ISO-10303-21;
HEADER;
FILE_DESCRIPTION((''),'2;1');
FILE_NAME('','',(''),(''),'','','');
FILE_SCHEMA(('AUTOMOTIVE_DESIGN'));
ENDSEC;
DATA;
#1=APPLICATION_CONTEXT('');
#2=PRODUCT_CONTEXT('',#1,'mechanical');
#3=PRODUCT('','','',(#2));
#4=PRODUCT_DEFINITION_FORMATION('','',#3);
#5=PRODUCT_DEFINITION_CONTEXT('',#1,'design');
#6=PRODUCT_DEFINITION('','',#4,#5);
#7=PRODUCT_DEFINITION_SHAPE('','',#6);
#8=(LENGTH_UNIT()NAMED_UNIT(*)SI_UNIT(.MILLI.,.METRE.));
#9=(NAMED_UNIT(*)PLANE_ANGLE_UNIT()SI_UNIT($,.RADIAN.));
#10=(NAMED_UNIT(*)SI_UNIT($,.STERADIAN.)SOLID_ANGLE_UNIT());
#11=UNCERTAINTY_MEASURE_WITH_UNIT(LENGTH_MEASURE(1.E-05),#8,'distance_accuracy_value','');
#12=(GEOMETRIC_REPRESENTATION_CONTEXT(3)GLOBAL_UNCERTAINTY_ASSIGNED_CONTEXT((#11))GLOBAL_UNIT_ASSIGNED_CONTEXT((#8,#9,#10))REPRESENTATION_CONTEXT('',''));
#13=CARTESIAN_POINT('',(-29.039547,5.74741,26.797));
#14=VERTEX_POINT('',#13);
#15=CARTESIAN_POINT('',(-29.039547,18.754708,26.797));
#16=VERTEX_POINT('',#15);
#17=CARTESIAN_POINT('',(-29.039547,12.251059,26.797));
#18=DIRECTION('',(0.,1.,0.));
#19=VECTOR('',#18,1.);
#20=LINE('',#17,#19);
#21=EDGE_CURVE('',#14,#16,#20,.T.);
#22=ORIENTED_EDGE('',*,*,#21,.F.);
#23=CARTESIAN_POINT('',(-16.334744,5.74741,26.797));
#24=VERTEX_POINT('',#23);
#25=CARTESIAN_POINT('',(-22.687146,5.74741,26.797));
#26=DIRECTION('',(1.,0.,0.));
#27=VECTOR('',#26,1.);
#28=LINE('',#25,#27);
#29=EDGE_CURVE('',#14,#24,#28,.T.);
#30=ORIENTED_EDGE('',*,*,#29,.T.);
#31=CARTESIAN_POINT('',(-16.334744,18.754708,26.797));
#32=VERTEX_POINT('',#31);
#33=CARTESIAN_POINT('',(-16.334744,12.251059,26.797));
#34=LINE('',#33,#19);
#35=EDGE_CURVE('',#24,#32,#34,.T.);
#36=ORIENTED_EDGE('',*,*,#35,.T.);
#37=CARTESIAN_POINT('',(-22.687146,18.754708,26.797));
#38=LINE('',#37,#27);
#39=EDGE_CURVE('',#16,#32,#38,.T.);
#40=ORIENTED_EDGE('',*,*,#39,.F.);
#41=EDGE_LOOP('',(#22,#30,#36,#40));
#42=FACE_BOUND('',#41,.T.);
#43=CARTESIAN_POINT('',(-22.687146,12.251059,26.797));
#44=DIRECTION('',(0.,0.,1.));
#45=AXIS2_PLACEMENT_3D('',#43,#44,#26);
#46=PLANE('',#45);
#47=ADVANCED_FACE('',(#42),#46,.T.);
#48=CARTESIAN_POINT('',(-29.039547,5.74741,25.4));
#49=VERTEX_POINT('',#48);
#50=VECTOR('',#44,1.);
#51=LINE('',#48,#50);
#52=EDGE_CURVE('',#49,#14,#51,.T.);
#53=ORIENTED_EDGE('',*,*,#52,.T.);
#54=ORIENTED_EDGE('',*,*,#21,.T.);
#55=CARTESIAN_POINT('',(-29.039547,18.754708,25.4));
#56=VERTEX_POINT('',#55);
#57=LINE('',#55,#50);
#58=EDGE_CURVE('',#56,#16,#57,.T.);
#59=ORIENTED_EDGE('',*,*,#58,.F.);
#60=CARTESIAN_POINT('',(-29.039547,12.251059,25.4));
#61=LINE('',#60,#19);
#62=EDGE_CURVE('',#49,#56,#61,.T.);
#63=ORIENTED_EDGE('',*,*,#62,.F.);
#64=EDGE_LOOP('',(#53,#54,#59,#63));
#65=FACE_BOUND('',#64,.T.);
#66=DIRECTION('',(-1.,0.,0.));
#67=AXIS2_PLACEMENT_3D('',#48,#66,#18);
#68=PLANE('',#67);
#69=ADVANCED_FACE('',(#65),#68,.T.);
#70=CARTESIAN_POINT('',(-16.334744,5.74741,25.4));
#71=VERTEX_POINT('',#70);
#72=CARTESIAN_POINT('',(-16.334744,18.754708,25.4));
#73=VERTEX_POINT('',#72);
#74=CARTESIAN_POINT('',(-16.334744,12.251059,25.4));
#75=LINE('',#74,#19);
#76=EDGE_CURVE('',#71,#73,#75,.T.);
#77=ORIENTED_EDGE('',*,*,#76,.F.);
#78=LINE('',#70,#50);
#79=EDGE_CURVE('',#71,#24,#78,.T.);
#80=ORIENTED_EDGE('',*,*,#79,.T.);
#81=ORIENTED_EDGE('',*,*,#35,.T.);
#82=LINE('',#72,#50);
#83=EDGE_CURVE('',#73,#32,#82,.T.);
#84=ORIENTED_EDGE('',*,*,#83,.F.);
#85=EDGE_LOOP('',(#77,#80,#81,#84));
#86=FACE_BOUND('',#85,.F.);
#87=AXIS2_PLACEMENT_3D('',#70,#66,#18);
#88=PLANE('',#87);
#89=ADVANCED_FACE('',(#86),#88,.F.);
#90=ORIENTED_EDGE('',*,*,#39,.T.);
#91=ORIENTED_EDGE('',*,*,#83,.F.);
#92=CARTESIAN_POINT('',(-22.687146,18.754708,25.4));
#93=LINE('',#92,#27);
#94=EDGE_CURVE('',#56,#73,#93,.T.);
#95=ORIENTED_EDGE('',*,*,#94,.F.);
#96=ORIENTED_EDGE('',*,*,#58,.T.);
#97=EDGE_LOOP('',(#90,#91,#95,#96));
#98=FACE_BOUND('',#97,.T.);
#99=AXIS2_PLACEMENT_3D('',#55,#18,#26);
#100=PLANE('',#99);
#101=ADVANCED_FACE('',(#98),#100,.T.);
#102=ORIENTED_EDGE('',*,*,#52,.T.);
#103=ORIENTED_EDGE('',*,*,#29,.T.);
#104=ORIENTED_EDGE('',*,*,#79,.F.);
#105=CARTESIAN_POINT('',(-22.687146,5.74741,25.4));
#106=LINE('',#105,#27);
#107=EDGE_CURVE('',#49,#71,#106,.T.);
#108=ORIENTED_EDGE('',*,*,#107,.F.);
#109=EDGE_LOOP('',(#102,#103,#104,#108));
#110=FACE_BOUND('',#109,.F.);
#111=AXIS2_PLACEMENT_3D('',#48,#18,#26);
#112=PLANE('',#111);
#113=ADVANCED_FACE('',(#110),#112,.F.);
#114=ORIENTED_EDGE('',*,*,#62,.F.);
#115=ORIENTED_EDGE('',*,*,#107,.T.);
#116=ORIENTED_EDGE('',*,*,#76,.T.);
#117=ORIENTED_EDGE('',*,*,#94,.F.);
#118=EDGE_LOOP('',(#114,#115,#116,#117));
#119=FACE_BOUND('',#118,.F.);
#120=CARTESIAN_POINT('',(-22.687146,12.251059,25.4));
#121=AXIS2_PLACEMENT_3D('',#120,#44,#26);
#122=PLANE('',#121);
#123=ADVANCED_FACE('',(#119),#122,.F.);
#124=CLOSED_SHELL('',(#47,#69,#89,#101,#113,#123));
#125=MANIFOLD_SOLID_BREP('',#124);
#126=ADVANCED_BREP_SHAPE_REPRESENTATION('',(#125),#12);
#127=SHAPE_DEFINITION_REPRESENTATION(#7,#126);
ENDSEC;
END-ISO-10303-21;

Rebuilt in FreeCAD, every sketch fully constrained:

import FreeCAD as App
import Part
import Sketcher
from FreeCAD import Vector
Q = App.Units.Quantity

doc = App.newDocument("Part")
body = doc.addObject("PartDesign::Body", "Body")

sketch1 = body.newObject("Sketcher::SketchObject", "Sketch")
sketch1.AttachmentSupport = (doc.getObject("XY_Plane"), [""])
sketch1.MapMode = "FlatFace"
sketch1.addGeometry([
    Part.LineSegment(Vector(-29, 19, 0), Vector(-29, 6, 0)),
    Part.LineSegment(Vector(-29, 6, 0), Vector(-16, 6, 0)),
    Part.LineSegment(Vector(-16, 6, 0), Vector(-16, 19, 0)),
    Part.LineSegment(Vector(-16, 19, 0), Vector(-29, 19, 0)),
], False)
sketch1.addConstraint([
    Sketcher.Constraint("Coincident", 0, 2, 1, 1),
    Sketcher.Constraint("Coincident", 1, 2, 2, 1),
    Sketcher.Constraint("Coincident", 2, 2, 3, 1),
    Sketcher.Constraint("Coincident", 3, 2, 0, 1),
    Sketcher.Constraint("Vertical", 0),
    Sketcher.Constraint("Horizontal", 1),
    Sketcher.Constraint("Vertical", 2),
    Sketcher.Constraint("Horizontal", 3),
    Sketcher.Constraint("DistanceX", 1, 2, -1, 1, Q("0.6431002 in")),
    Sketcher.Constraint("DistanceX", 1, 1, 1, 2, Q("12.704803 mm")),
    Sketcher.Constraint("DistanceY", 0, 2, 0, 1, Q("13.007298 mm")),
    Sketcher.Constraint("DistanceY", -1, 1, 0, 2, Q("5.74741 mm")),
])
pad1 = body.newObject("PartDesign::Pad", "Pad")
pad1.Profile = sketch1
pad1.Length = Q("0.055 in")
body2 = doc.addObject("PartDesign::Body", "Body001")
doc.recompute()

body.Placement = App.Placement(Vector(0, 0, 25.4), App.Rotation(Vector(0, 0, 1), 0))
boolean = body2.newObject("PartDesign::Boolean", "Boolean")
boolean.Type = "Fuse"
boolean.addObjects([body])

doc.recompute()
